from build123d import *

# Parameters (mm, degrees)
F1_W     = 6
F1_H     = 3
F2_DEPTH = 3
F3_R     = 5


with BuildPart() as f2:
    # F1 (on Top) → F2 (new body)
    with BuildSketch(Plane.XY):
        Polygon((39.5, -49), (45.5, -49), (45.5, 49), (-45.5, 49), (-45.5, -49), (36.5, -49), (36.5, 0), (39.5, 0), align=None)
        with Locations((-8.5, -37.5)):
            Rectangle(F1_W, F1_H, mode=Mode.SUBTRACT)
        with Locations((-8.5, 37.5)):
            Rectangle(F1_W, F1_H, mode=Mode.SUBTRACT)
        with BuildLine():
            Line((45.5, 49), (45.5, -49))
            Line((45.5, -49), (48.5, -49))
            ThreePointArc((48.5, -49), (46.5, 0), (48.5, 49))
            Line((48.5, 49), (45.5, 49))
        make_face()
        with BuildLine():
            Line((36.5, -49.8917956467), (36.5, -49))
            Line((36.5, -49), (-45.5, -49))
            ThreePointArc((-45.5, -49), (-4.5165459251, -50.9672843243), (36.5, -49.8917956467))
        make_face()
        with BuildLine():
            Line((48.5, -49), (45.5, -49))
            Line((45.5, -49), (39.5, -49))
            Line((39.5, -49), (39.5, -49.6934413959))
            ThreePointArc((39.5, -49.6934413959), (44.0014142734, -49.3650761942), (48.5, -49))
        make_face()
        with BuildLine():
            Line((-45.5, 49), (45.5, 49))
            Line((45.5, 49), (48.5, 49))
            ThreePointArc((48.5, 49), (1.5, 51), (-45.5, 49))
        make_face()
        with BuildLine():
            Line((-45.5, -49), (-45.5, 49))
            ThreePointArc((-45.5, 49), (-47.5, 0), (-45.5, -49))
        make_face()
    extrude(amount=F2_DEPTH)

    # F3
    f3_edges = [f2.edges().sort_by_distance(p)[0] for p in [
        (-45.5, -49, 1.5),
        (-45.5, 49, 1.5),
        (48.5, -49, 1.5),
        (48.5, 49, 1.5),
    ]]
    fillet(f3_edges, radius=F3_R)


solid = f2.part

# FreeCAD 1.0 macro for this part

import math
import FreeCAD as App
import Part
import Sketcher

V = App.Vector
Q = App.Units.Quantity


def edges_at(feature, points):
    """Names of the edges that pass closest to the given points."""
    edges = feature.Shape.Edges
    near = lambda p: min(range(len(edges)), key=lambda i: edges[i].distToShape(Part.Vertex(*p))[0])
    return sorted({f"Edge{near(p) + 1}" for p in points})

doc = App.newDocument("Part")
body = doc.addObject("PartDesign::Body", "Body")

sketch1 = body.newObject("Sketcher::SketchObject", "Sketch")
sketch1.AttachmentSupport = (doc.getObject("XY_Plane"), [""])
sketch1.MapMode = "FlatFace"
sketch1.addGeometry(Part.ArcOfCircle(Part.Circle(V(647.75, 0, 0), V(0, 0, 1), 601.25), math.radians(175.325388), math.radians(184.674612)), False)
sketch1.addGeometry(Part.ArcOfCircle(Part.Circle(V(1.5, -502.25, 0), V(0, 0, 1), 553.25), math.radians(85.126704), math.radians(94.873296)), False)
sketch1.addGeometry(Part.ArcOfCircle(Part.Circle(V(553.75, 0, 0), V(0, 0, 1), 601.25), math.radians(175.325388), math.radians(184.674612)), False)
sketch1.addGeometry(Part.ArcOfCircle(Part.Circle(V(1.5, 502.25, 0), V(0, 0, 1), 553.25), math.radians(-94.873296), math.radians(-86.372901)), False)
sketch1.addGeometry(Part.LineSegment(V(36.5, -49.891796, 0), V(36.5, 0, 0)), False)
sketch1.addGeometry(Part.LineSegment(V(36.5, 0, 0), V(39.5, 0, 0)), False)
sketch1.addGeometry(Part.LineSegment(V(39.5, 0, 0), V(39.5, -49.693441, 0)), False)
sketch1.addGeometry(Part.ArcOfCircle(Part.Circle(V(1.5, 502.25, 0), V(0, 0, 1), 553.25), math.radians(-86.061536), math.radians(-85.126704)), False)
sketch1.addGeometry(Part.LineSegment(V(-5.5, -39, 0), V(-11.5, -39, 0)), False)
sketch1.addGeometry(Part.LineSegment(V(-11.5, -39, 0), V(-11.5, -36, 0)), False)
sketch1.addGeometry(Part.LineSegment(V(-11.5, -36, 0), V(-5.5, -36, 0)), False)
sketch1.addGeometry(Part.LineSegment(V(-5.5, -36, 0), V(-5.5, -39, 0)), False)
sketch1.addGeometry(Part.LineSegment(V(-5.5, 36, 0), V(-11.5, 36, 0)), False)
sketch1.addGeometry(Part.LineSegment(V(-11.5, 36, 0), V(-11.5, 39, 0)), False)
sketch1.addGeometry(Part.LineSegment(V(-11.5, 39, 0), V(-5.5, 39, 0)), False)
sketch1.addGeometry(Part.LineSegment(V(-5.5, 39, 0), V(-5.5, 36, 0)), False)
sketch1.addConstraint(Sketcher.Constraint("Coincident", 0, 1, 1, 1))
sketch1.addConstraint(Sketcher.Constraint("Coincident", 1, 2, 2, 1))
sketch1.addConstraint(Sketcher.Constraint("Coincident", 2, 2, 3, 1))
sketch1.addConstraint(Sketcher.Constraint("Coincident", 3, 2, 4, 1))
sketch1.addConstraint(Sketcher.Constraint("Coincident", 4, 2, 5, 1))
sketch1.addConstraint(Sketcher.Constraint("Coincident", 5, 2, 6, 1))
sketch1.addConstraint(Sketcher.Constraint("Coincident", 6, 2, 7, 1))
sketch1.addConstraint(Sketcher.Constraint("Coincident", 7, 2, 0, 2))
sketch1.addConstraint(Sketcher.Constraint("Coincident", 8, 2, 9, 1))
sketch1.addConstraint(Sketcher.Constraint("Coincident", 9, 2, 10, 1))
sketch1.addConstraint(Sketcher.Constraint("Coincident", 10, 2, 11, 1))
sketch1.addConstraint(Sketcher.Constraint("Coincident", 11, 2, 8, 1))
sketch1.addConstraint(Sketcher.Constraint("Coincident", 12, 2, 13, 1))
sketch1.addConstraint(Sketcher.Constraint("Coincident", 13, 2, 14, 1))
sketch1.addConstraint(Sketcher.Constraint("Coincident", 14, 2, 15, 1))
sketch1.addConstraint(Sketcher.Constraint("Coincident", 15, 2, 12, 1))
sketch1.addConstraint(Sketcher.Constraint("Vertical", 4))
sketch1.addConstraint(Sketcher.Constraint("Horizontal", 5))
sketch1.addConstraint(Sketcher.Constraint("Vertical", 6))
sketch1.addConstraint(Sketcher.Constraint("Horizontal", 8))
sketch1.addConstraint(Sketcher.Constraint("Vertical", 9))
sketch1.addConstraint(Sketcher.Constraint("Horizontal", 10))
sketch1.addConstraint(Sketcher.Constraint("Vertical", 11))
sketch1.addConstraint(Sketcher.Constraint("Horizontal", 12))
sketch1.addConstraint(Sketcher.Constraint("Vertical", 13))
sketch1.addConstraint(Sketcher.Constraint("Horizontal", 14))
sketch1.addConstraint(Sketcher.Constraint("Vertical", 15))
sketch1.addConstraint(Sketcher.Constraint("Coincident", 7, 3, 3, 3))
sketch1.addConstraint(Sketcher.Constraint("Equal", 0, 2))
sketch1.addConstraint(Sketcher.Constraint("Equal", 1, 3))
sketch1.addConstraint(Sketcher.Constraint("Equal", 3, 7))
sketch1.addConstraint(Sketcher.Constraint("Symmetric", 1, 3, 3, 3, -1))
sketch1.addConstraint(Sketcher.Constraint("Symmetric", 9, 2, 12, 2, -1))
sketch1.addConstraint(Sketcher.Constraint("Symmetric", 11, 2, 14, 2, -1))
sketch1.addConstraint(Sketcher.Constraint("PointOnObject", 0, 3, -1))
sketch1.addConstraint(Sketcher.Constraint("PointOnObject", 2, 3, -1))
sketch1.addConstraint(Sketcher.Constraint("PointOnObject", 4, 2, -1))
sketch1.addConstraint(Sketcher.Constraint("Equal", 5, 9))
sketch1.addConstraint(Sketcher.Constraint("DistanceX", 5, 1, 5, 2, Q("3 mm")))
sketch1.addConstraint(Sketcher.Constraint("DistanceX", 8, 2, 8, 1, Q("6 mm")))
sketch1.addConstraint(Sketcher.Constraint("Radius", 0, Q("601.25 mm")))
sketch1.addConstraint(Sketcher.Constraint("Radius", 1, Q("553.25 mm")))
sketch1.addConstraint(Sketcher.Constraint("DistanceY", -1, 1, 1, 2, Q("49 mm")))
sketch1.addConstraint(Sketcher.Constraint("DistanceY", 7, 2, -1, 1, Q("49 mm")))
sketch1.addConstraint(Sketcher.Constraint("DistanceY", 8, 2, -1, 1, Q("39 mm")))
sketch1.addConstraint(Sketcher.Constraint("DistanceX", 2, 3, 0, 3, Q("94 mm")))
sketch1.addConstraint(Sketcher.Constraint("DistanceX", 4, 2, 0, 1, Q("12 mm")))
sketch1.addConstraint(Sketcher.Constraint("DistanceX", 2, 2, 8, 2, Q("34 mm")))
sketch1.addConstraint(Sketcher.Constraint("DistanceX", -1, 1, 1, 3, Q("1.5 mm")))
pad1 = body.newObject("PartDesign::Pad", "Pad")
pad1.Profile = sketch1
pad1.Length = 3
doc.recompute()

fillet = body.newObject("PartDesign::Fillet", "Fillet")
fillet.Base = (pad1, edges_at(pad1, [
    (-45.5, -49, 1.5),
    (-45.5, 49, 1.5),
    (48.5, -49, 1.5),
    (48.5, 49, 1.5),
]))
fillet.Radius = 5

doc.recompute()
